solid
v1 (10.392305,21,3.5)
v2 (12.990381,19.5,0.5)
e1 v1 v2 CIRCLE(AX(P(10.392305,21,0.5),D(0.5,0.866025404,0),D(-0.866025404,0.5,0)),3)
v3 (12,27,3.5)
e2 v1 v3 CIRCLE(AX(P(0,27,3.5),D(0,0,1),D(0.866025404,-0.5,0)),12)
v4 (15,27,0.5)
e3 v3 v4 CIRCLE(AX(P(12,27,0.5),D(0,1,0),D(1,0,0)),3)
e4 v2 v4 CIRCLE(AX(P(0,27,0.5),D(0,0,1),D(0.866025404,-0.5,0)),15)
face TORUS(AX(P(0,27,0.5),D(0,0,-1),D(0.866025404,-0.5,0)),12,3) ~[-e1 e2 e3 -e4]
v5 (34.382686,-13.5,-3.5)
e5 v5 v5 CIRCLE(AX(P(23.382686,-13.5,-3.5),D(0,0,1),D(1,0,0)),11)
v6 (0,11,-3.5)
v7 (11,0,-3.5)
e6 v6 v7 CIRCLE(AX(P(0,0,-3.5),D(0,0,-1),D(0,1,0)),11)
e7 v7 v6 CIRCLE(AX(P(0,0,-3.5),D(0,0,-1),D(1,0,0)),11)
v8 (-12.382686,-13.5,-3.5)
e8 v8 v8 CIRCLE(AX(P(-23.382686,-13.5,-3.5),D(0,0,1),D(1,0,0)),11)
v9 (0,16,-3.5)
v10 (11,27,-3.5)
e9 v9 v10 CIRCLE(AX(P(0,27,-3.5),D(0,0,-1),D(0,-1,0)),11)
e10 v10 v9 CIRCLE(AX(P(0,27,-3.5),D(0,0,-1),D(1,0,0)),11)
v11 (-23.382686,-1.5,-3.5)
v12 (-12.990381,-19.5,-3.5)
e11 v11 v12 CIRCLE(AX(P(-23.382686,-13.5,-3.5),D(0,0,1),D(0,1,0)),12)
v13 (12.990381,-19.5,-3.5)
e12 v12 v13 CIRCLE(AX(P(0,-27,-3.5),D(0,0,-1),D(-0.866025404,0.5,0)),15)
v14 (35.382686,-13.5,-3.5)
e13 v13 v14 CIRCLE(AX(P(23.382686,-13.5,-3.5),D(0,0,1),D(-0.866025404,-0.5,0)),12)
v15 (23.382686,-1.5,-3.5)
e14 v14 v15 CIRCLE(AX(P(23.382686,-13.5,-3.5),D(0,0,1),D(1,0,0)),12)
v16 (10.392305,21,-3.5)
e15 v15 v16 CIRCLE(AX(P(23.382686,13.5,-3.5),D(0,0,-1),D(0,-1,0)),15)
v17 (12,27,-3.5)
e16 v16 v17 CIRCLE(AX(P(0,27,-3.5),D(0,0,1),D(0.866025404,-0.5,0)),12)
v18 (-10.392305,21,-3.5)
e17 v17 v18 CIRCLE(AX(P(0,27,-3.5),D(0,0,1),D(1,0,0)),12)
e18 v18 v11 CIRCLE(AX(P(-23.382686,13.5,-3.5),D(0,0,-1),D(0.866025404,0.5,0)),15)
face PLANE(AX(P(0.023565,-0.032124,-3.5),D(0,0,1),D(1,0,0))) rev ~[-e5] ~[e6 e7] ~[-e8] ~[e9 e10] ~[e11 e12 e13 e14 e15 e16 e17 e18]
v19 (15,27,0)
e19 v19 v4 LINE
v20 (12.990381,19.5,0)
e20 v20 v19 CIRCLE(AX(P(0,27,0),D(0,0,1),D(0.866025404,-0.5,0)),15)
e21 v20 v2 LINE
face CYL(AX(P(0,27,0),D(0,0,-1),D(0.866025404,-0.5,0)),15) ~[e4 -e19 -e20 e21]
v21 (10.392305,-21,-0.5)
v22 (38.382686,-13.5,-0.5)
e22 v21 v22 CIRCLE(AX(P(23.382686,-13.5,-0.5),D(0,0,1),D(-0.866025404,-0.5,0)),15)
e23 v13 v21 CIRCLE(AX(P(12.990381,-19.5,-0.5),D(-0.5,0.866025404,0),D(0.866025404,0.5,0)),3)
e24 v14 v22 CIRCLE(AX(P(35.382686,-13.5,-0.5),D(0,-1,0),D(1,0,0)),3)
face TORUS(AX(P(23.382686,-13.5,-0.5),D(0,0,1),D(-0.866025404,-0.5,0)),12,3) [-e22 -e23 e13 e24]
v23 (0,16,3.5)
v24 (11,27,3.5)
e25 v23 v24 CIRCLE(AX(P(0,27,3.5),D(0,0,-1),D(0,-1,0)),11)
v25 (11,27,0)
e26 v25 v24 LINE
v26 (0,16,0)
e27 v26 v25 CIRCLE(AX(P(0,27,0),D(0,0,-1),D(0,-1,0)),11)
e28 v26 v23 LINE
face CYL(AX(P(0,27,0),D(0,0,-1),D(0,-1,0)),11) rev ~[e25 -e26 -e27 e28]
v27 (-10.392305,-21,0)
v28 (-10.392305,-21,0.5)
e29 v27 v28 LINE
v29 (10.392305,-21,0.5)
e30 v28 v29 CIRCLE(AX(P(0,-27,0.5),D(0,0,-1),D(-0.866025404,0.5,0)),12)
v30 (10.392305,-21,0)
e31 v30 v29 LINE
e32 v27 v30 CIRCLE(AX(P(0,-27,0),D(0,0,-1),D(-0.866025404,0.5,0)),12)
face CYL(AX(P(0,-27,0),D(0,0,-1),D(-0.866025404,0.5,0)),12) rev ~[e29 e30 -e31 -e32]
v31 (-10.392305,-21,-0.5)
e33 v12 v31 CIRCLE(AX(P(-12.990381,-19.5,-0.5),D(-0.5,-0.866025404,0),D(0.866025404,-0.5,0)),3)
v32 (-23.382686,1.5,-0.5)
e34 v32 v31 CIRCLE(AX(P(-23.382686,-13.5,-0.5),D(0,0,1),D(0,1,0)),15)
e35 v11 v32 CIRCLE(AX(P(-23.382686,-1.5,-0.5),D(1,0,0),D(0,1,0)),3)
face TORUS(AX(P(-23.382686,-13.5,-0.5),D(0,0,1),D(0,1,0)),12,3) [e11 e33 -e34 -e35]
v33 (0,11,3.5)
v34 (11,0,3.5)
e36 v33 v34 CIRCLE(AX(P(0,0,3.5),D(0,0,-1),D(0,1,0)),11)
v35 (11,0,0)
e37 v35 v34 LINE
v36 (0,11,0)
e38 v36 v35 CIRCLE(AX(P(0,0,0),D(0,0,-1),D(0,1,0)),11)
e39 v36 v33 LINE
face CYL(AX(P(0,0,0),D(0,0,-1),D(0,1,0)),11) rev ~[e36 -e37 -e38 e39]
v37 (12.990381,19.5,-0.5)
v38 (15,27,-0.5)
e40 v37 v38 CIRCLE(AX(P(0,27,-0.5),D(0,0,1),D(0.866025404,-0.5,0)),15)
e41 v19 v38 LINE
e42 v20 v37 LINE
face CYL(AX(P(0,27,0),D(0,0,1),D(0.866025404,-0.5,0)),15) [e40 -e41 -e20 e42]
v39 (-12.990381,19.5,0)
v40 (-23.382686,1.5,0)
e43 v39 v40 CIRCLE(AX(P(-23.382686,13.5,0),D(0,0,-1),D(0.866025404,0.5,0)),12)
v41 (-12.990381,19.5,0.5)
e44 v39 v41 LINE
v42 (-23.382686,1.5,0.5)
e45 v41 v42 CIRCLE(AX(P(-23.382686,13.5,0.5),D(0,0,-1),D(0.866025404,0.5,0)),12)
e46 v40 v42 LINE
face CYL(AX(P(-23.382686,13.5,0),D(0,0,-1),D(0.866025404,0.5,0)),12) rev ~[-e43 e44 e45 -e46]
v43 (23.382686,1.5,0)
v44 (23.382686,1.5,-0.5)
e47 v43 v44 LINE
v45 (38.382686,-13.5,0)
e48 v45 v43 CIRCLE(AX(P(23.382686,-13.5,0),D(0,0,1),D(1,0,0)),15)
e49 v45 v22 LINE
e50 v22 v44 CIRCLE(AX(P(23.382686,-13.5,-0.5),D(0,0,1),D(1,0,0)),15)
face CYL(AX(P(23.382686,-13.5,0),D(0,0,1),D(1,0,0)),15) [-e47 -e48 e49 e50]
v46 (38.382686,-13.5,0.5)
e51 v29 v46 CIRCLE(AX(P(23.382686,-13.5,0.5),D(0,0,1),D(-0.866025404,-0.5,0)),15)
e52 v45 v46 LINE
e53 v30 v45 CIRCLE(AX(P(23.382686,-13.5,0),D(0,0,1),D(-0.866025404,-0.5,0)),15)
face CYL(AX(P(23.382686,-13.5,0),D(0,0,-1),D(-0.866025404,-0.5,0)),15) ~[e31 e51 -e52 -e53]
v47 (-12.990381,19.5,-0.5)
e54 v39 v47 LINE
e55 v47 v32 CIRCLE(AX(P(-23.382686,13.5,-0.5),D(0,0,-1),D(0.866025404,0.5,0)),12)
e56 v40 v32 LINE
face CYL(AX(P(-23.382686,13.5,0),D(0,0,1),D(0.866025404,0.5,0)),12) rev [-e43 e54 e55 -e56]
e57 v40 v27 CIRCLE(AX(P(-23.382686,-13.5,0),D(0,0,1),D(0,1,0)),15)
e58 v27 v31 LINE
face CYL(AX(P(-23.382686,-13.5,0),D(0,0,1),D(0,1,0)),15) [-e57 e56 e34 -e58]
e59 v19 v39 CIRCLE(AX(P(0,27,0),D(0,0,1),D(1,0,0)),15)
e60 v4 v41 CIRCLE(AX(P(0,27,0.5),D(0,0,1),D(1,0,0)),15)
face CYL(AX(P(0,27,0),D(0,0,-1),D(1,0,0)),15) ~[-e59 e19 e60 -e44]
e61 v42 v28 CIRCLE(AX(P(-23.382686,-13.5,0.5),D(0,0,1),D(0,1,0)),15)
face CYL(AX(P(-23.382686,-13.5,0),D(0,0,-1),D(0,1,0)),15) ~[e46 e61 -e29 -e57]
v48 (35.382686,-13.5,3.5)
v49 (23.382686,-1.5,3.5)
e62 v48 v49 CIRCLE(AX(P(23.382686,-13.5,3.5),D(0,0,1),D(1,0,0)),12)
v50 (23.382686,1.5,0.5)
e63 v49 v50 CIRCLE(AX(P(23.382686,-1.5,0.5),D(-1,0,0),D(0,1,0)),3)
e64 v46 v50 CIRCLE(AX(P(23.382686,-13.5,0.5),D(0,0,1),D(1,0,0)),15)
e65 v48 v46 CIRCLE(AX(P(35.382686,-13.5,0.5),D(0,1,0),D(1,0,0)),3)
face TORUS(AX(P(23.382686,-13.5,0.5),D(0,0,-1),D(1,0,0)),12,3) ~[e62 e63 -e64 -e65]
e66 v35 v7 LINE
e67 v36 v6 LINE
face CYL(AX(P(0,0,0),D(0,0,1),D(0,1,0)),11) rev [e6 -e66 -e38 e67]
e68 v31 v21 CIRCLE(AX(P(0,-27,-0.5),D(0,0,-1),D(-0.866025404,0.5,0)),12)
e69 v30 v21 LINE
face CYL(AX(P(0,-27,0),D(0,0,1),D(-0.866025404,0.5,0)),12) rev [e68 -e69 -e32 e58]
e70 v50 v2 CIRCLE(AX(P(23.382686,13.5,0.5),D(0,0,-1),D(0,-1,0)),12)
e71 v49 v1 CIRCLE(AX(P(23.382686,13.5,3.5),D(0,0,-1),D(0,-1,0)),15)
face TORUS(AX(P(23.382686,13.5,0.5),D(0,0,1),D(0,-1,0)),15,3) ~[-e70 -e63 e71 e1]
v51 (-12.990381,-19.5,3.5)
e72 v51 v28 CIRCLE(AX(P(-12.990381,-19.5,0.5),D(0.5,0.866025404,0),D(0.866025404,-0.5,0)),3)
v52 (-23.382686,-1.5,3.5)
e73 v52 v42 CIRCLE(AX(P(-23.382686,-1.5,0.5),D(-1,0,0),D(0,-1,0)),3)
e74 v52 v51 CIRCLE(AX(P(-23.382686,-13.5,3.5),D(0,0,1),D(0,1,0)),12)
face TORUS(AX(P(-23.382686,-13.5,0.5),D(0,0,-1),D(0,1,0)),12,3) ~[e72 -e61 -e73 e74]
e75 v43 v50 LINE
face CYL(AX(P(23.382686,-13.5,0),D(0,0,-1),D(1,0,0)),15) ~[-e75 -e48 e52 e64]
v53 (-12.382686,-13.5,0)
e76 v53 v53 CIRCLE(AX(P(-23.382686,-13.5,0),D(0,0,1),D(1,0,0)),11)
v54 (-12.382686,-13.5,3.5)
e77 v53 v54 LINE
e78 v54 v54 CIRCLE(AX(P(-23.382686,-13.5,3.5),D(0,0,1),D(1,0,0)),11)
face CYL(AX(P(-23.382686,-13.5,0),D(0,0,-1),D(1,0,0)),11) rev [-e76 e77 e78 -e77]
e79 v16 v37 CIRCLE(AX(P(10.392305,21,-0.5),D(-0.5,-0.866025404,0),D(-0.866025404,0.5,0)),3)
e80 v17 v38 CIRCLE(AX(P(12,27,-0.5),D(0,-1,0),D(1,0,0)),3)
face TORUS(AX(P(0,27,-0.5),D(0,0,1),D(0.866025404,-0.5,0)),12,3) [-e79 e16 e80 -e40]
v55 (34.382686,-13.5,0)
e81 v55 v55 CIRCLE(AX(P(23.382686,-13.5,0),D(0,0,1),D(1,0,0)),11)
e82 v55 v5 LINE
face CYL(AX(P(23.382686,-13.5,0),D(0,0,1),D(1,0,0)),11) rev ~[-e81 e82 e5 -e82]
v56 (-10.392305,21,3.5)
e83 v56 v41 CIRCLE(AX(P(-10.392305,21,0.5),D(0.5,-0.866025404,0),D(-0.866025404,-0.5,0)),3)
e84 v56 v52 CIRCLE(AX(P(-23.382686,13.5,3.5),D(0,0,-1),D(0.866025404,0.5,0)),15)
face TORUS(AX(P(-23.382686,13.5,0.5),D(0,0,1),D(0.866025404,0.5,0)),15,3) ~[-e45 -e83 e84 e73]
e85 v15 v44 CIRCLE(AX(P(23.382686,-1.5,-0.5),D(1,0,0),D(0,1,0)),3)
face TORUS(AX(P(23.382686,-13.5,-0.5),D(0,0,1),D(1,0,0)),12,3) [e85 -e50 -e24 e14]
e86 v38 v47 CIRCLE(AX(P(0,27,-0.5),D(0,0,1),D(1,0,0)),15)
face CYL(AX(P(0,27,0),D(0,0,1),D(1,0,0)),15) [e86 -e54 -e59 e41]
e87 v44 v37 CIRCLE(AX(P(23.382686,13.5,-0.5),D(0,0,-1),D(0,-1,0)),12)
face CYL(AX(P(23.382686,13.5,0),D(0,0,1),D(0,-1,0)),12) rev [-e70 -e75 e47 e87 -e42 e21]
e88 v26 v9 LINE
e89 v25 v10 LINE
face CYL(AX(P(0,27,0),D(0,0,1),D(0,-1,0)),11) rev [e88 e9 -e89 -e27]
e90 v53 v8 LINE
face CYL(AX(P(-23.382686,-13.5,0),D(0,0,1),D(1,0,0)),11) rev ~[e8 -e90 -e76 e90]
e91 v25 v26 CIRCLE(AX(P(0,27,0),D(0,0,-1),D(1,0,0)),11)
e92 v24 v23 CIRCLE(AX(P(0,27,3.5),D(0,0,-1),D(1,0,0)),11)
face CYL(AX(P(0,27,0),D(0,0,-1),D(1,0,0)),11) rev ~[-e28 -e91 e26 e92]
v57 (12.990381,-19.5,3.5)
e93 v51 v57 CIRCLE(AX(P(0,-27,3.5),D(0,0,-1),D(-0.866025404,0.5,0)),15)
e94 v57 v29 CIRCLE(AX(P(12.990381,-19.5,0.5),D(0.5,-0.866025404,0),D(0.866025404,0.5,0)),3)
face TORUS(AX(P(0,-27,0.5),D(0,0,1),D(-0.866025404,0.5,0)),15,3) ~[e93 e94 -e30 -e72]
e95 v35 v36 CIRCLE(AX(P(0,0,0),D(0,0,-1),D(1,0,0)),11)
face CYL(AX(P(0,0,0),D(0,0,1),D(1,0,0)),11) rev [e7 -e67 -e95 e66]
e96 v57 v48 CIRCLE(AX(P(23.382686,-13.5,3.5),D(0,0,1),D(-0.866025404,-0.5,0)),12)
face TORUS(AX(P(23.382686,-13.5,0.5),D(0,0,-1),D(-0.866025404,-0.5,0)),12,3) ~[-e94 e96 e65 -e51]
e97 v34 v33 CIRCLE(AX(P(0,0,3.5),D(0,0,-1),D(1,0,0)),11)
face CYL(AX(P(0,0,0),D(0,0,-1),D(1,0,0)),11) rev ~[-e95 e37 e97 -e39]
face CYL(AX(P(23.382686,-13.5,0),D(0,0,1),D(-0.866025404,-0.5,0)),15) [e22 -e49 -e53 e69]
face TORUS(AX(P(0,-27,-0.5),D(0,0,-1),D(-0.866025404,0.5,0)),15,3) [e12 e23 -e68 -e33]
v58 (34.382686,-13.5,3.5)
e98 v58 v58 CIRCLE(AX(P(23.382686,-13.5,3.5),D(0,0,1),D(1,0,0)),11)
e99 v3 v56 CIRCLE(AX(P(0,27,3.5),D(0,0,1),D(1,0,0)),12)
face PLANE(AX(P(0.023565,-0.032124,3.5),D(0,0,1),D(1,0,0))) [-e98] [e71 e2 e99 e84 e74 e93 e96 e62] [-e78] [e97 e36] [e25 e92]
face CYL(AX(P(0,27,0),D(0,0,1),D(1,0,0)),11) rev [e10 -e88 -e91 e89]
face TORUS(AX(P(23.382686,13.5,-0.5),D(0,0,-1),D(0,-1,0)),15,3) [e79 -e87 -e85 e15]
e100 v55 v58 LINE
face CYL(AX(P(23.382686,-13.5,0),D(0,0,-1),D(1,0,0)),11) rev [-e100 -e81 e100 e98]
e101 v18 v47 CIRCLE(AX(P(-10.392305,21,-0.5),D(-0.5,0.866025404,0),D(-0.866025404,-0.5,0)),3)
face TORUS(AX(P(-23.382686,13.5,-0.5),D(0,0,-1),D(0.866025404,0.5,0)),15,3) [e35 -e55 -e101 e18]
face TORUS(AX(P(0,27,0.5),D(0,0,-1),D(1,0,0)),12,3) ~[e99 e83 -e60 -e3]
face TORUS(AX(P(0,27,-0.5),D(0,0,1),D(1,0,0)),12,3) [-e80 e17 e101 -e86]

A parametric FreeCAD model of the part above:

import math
import FreeCAD as App
import Part
import Sketcher

V = App.Vector


def edges_at(feature, points):
    """Names of the edges that pass closest to the given points."""
    edges = feature.Shape.Edges
    near = lambda p: min(range(len(edges)), key=lambda i: edges[i].distToShape(Part.Vertex(*p))[0])
    return sorted({f"Edge{near(p) + 1}" for p in points})

doc = App.newDocument("Part")
body = doc.addObject("PartDesign::Body", "Body")

# Sketch on XY plane
sketch1 = body.newObject("Sketcher::SketchObject", "Sketch")
sketch1.AttachmentSupport = (doc.getObject("XY_Plane"), [""])
sketch1.MapMode = "FlatFace"
sketch1.addGeometry(Part.ArcOfCircle(Part.Circle(V(23.382686, 13.5, 0), V(0, 0, 1), 12), math.radians(150), math.radians(270)), False)
sketch1.addGeometry(Part.ArcOfCircle(Part.Circle(V(0, 27, 0), V(0, 0, 1), 15), math.radians(-30), math.radians(0)), False)
sketch1.addGeometry(Part.ArcOfCircle(Part.Circle(V(0, 27, 0), V(0, 0, 1), 15), math.radians(0), math.radians(210)), False)
sketch1.addGeometry(Part.ArcOfCircle(Part.Circle(V(-23.382686, 13.5, 0), V(0, 0, 1), 12), math.radians(-90), math.radians(30)), False)
sketch1.addGeometry(Part.ArcOfCircle(Part.Circle(V(-23.382686, -13.5, 0), V(0, 0, 1), 15), math.radians(90), math.radians(330)), False)
sketch1.addGeometry(Part.ArcOfCircle(Part.Circle(V(0, -27, 0), V(0, 0, 1), 12), math.radians(30), math.radians(150)), False)
sketch1.addGeometry(Part.ArcOfCircle(Part.Circle(V(23.382686, -13.5, 0), V(0, 0, 1), 15), math.radians(-150), math.radians(0)), False)
sketch1.addGeometry(Part.ArcOfCircle(Part.Circle(V(23.382686, -13.5, 0), V(0, 0, 1), 15), math.radians(0), math.radians(90)), False)
sketch1.addGeometry(Part.Circle(V(-23.382686, -13.5, 0), V(0, 0, 1), 11), False)
sketch1.addGeometry(Part.ArcOfCircle(Part.Circle(V(0, 0, 0), V(0, 0, 1), 11), math.radians(90), math.radians(360)), False)
sketch1.addGeometry(Part.ArcOfCircle(Part.Circle(V(0, 0, 0), V(0, 0, 1), 11), math.radians(0), math.radians(90)), False)
sketch1.addGeometry(Part.Circle(V(23.382686, -13.5, 0), V(0, 0, 1), 11), False)
sketch1.addGeometry(Part.ArcOfCircle(Part.Circle(V(0, 27, 0), V(0, 0, 1), 11), math.radians(0), math.radians(270)), False)
sketch1.addGeometry(Part.ArcOfCircle(Part.Circle(V(0, 27, 0), V(0, 0, 1), 11), math.radians(-90), math.radians(0)), False)
sketch1.addConstraint(Sketcher.Constraint("Tangent", 0, 1, 1, 1))
sketch1.addConstraint(Sketcher.Constraint("Tangent", 1, 2, 2, 1))
sketch1.addConstraint(Sketcher.Constraint("Tangent", 2, 2, 3, 2))
sketch1.addConstraint(Sketcher.Constraint("Tangent", 3, 1, 4, 1))
sketch1.addConstraint(Sketcher.Constraint("Tangent", 4, 2, 5, 2))
sketch1.addConstraint(Sketcher.Constraint("Tangent", 5, 1, 6, 1))
sketch1.addConstraint(Sketcher.Constraint("Tangent", 6, 2, 7, 1))
sketch1.addConstraint(Sketcher.Constraint("Tangent", 7, 2, 0, 2))
sketch1.addConstraint(Sketcher.Constraint("Tangent", 9, 1, 10, 2))
sketch1.addConstraint(Sketcher.Constraint("Coincident", 10, 1, 9, 2))
sketch1.addConstraint(Sketcher.Constraint("Tangent", 12, 1, 13, 2))
sketch1.addConstraint(Sketcher.Constraint("Coincident", 13, 1, 12, 2))
sketch1.addConstraint(Sketcher.Constraint("Coincident", 9, 3, -1, 1))
sketch1.addConstraint(Sketcher.Constraint("Coincident", 8, 3, 4, 3))
sketch1.addConstraint(Sketcher.Constraint("Coincident", 11, 3, 6, 3))
sketch1.addConstraint(Sketcher.Constraint("Coincident", 12, 3, 1, 3))
sketch1.addConstraint(Sketcher.Constraint("Equal", 1, 2))
sketch1.addConstraint(Sketcher.Constraint("Equal", 0, 3))
sketch1.addConstraint(Sketcher.Constraint("Equal", 2, 4))
sketch1.addConstraint(Sketcher.Constraint("Equal", 3, 5))
sketch1.addConstraint(Sketcher.Constraint("Equal", 4, 6))
sketch1.addConstraint(Sketcher.Constraint("Equal", 6, 7))
sketch1.addConstraint(Sketcher.Constraint("Equal", 8, 9))
sketch1.addConstraint(Sketcher.Constraint("Equal", 10, 11))
sketch1.addConstraint(Sketcher.Constraint("Equal", 11, 12))
sketch1.addConstraint(Sketcher.Constraint("Symmetric", 0, 3, 4, 3, -1, 1))
sketch1.addConstraint(Sketcher.Constraint("Symmetric", 0, 3, 3, 3, -2))
sketch1.addConstraint(Sketcher.Constraint("PointOnObject", 5, 3, -2))
sketch1.addConstraint(Sketcher.Constraint("PointOnObject", 9, 1, -2))
sketch1.addConstraint(Sketcher.Constraint("PointOnObject", 10, 1, -1))
sketch1.addConstraint(Sketcher.Constraint("PointOnObject", 13, 1, -2))
sketch1.addConstraint(Sketcher.Constraint("Horizontal", 13, 3, 1, 2))
sketch1.addConstraint(Sketcher.Constraint("Horizontal", 11, 3, 6, 2))
sketch1.addConstraint(Sketcher.Constraint("Horizontal", 1, 2, 12, 1))
sketch1.addConstraint(Sketcher.Constraint("Diameter", 8, 22.0))
sketch1.addConstraint(Sketcher.Constraint("Radius", 0, 12.0))
sketch1.addConstraint(Sketcher.Constraint("Radius", 1, 15.0))
sketch1.addConstraint(Sketcher.Constraint("DistanceY", -1, 1, 1, 3, 27.0))
pad1 = body.newObject("PartDesign::Pad", "Pad")
pad1.Profile = sketch1
pad1.Length = 7
pad1.Midplane = True
doc.recompute()

fillet = body.newObject("PartDesign::Fillet", "Fillet")
fillet.Base = (pad1, edges_at(pad1, [(-3.882, 41.489, 3.5), (-36.373, -21, -3.5)]))
fillet.Radius = 3

doc.recompute()
